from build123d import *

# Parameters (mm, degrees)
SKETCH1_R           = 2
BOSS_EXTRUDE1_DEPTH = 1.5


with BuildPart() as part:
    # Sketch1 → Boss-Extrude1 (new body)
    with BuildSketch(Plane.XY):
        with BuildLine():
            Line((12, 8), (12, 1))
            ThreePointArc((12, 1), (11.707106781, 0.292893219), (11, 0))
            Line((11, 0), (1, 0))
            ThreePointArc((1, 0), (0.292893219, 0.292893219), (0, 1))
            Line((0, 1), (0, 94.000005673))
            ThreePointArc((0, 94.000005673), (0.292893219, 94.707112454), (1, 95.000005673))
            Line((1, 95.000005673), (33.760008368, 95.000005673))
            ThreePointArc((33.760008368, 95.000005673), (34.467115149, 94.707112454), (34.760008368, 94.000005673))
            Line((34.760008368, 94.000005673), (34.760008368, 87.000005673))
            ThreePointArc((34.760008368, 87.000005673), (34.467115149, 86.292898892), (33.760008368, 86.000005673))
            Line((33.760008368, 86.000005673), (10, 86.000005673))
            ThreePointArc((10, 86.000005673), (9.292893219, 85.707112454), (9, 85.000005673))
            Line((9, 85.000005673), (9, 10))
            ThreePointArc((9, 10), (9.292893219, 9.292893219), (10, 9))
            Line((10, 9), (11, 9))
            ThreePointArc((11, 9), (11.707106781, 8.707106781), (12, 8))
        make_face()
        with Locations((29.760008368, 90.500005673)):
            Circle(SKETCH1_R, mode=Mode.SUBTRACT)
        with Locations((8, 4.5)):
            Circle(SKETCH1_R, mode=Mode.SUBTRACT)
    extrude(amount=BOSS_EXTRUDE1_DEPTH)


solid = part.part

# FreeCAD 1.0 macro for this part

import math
import FreeCAD as App
import Part
import Sketcher
Q = App.Units.Quantity

doc = App.newDocument("Part")
body = doc.addObject("PartDesign::Body", "Body")

sketch1 = doc.addObject("Sketcher::SketchObject", "Sketch")
body.addObject(sketch1)
sketch1.AttachmentSupport = (doc.XY_Plane, [""])
sketch1.MapMode = "FlatFace"
sketch1.addGeometry(Part.LineSegment(App.Vector(12, 1, 0), App.Vector(12, 8, 0)), False)
sketch1.addGeometry(Part.ArcOfCircle(Part.Circle(App.Vector(11, 8, 0), App.Vector(0, 0, 1), 1), math.radians(0), math.radians(90)), False)
sketch1.addGeometry(Part.LineSegment(App.Vector(11, 9, 0), App.Vector(10, 9, 0)), False)
sketch1.addGeometry(Part.ArcOfCircle(Part.Circle(App.Vector(10, 10, 0), App.Vector(0, 0, 1), 1), math.radians(-180), math.radians(-90)), False)
sketch1.addGeometry(Part.LineSegment(App.Vector(9, 10, 0), App.Vector(9, 85.000006, 0)), False)
sketch1.addGeometry(Part.ArcOfCircle(Part.Circle(App.Vector(10, 85.000006, 0), App.Vector(0, 0, 1), 1), math.radians(90), math.radians(180)), False)
sketch1.addGeometry(Part.LineSegment(App.Vector(10, 86.000006, 0), App.Vector(33.760008, 86.000006, 0)), False)
sketch1.addGeometry(Part.ArcOfCircle(Part.Circle(App.Vector(33.760008, 87.000006, 0), App.Vector(0, 0, 1), 1), math.radians(-90), math.radians(0)), False)
sketch1.addGeometry(Part.LineSegment(App.Vector(34.760008, 87.000006, 0), App.Vector(34.760008, 94.000006, 0)), False)
sketch1.addGeometry(Part.ArcOfCircle(Part.Circle(App.Vector(33.760008, 94.000006, 0), App.Vector(0, 0, 1), 1), math.radians(0), math.radians(90)), False)
sketch1.addGeometry(Part.LineSegment(App.Vector(33.760008, 95.000006, 0), App.Vector(1, 95.000006, 0)), False)
sketch1.addGeometry(Part.ArcOfCircle(Part.Circle(App.Vector(1, 94.000006, 0), App.Vector(0, 0, 1), 1), math.radians(90), math.radians(180)), False)
sketch1.addGeometry(Part.LineSegment(App.Vector(0, 94.000006, 0), App.Vector(0, 1, 0)), False)
sketch1.addGeometry(Part.ArcOfCircle(Part.Circle(App.Vector(1, 1, 0), App.Vector(0, 0, 1), 1), math.radians(-180), math.radians(-90)), False)
sketch1.addGeometry(Part.LineSegment(App.Vector(1, 0, 0), App.Vector(11, 0, 0)), False)
sketch1.addGeometry(Part.ArcOfCircle(Part.Circle(App.Vector(11, 1, 0), App.Vector(0, 0, 1), 1), math.radians(-90), math.radians(0)), False)
sketch1.addGeometry(Part.Circle(App.Vector(8, 4.5, 0), App.Vector(0, 0, 1), 2), False)
sketch1.addGeometry(Part.Circle(App.Vector(29.760008, 90.500006, 0), App.Vector(0, 0, 1), 2), False)
sketch1.addConstraint(Sketcher.Constraint("Tangent", 0, 2, 1, 1))
sketch1.addConstraint(Sketcher.Constraint("Tangent", 1, 2, 2, 1))
sketch1.addConstraint(Sketcher.Constraint("Tangent", 2, 2, 3, 2))
sketch1.addConstraint(Sketcher.Constraint("Tangent", 3, 1, 4, 1))
sketch1.addConstraint(Sketcher.Constraint("Tangent", 4, 2, 5, 2))
sketch1.addConstraint(Sketcher.Constraint("Tangent", 5, 1, 6, 1))
sketch1.addConstraint(Sketcher.Constraint("Tangent", 6, 2, 7, 1))
sketch1.addConstraint(Sketcher.Constraint("Tangent", 7, 2, 8, 1))
sketch1.addConstraint(Sketcher.Constraint("Tangent", 8, 2, 9, 1))
sketch1.addConstraint(Sketcher.Constraint("Tangent", 9, 2, 10, 1))
sketch1.addConstraint(Sketcher.Constraint("Tangent", 10, 2, 11, 1))
sketch1.addConstraint(Sketcher.Constraint("Tangent", 11, 2, 12, 1))
sketch1.addConstraint(Sketcher.Constraint("Tangent", 12, 2, 13, 1))
sketch1.addConstraint(Sketcher.Constraint("Tangent", 13, 2, 14, 1))
sketch1.addConstraint(Sketcher.Constraint("Tangent", 14, 2, 15, 1))
sketch1.addConstraint(Sketcher.Constraint("Tangent", 15, 2, 0, 1))
sketch1.addConstraint(Sketcher.Constraint("Vertical", 0))
sketch1.addConstraint(Sketcher.Constraint("Horizontal", 2))
sketch1.addConstraint(Sketcher.Constraint("Vertical", 4))
sketch1.addConstraint(Sketcher.Constraint("Horizontal", 6))
sketch1.addConstraint(Sketcher.Constraint("Vertical", 8))
sketch1.addConstraint(Sketcher.Constraint("Horizontal", 10))
sketch1.addConstraint(Sketcher.Constraint("Vertical", 12))
sketch1.addConstraint(Sketcher.Constraint("Horizontal", 14))
sketch1.addConstraint(Sketcher.Constraint("Equal", 1, 3))
sketch1.addConstraint(Sketcher.Constraint("Equal", 3, 5))
sketch1.addConstraint(Sketcher.Constraint("Equal", 5, 7))
sketch1.addConstraint(Sketcher.Constraint("Equal", 7, 9))
sketch1.addConstraint(Sketcher.Constraint("Equal", 9, 11))
sketch1.addConstraint(Sketcher.Constraint("Equal", 11, 13))
sketch1.addConstraint(Sketcher.Constraint("Equal", 13, 15))
sketch1.addConstraint(Sketcher.Constraint("Equal", 16, 17))
sketch1.addConstraint(Sketcher.Constraint("PointOnObject", 11, 2, -2))
sketch1.addConstraint(Sketcher.Constraint("PointOnObject", 13, 2, -1))
sketch1.addConstraint(Sketcher.Constraint("Equal", 0, 8))
sketch1.addConstraint(Sketcher.Constraint("Diameter", 16, Q("4 mm")))
sketch1.addConstraint(Sketcher.Constraint("Radius", 1, Q("1 mm")))
sketch1.addConstraint(Sketcher.Constraint("DistanceX", 2, 2, 2, 1, Q("1 mm")))
sketch1.addConstraint(Sketcher.Constraint("DistanceX", 14, 1, 14, 2, Q("10 mm")))
sketch1.addConstraint(Sketcher.Constraint("DistanceY", 0, 1, 0, 2, Q("7 mm")))
sketch1.addConstraint(Sketcher.Constraint("DistanceX", -1, 1, 16, 3, Q("8 mm")))
sketch1.addConstraint(Sketcher.Constraint("DistanceX", 17, 3, 9, 3, Q("4 mm")))
sketch1.addConstraint(Sketcher.Constraint("DistanceY", -1, 1, 16, 3, Q("4.5 mm")))
sketch1.addConstraint(Sketcher.Constraint("DistanceY", 17, 3, 9, 3, Q("3.5 mm")))
sketch1.addConstraint(Sketcher.Constraint("DistanceX", 6, 1, 6, 2, Q("23.760008 mm")))
sketch1.addConstraint(Sketcher.Constraint("DistanceY", 4, 1, 4, 2, Q("75.000006 mm")))
pad1 = doc.addObject("PartDesign::Pad", "Pad")
body.addObject(pad1)
pad1.Profile = sketch1
pad1.Length = 1.5

doc.recompute()
